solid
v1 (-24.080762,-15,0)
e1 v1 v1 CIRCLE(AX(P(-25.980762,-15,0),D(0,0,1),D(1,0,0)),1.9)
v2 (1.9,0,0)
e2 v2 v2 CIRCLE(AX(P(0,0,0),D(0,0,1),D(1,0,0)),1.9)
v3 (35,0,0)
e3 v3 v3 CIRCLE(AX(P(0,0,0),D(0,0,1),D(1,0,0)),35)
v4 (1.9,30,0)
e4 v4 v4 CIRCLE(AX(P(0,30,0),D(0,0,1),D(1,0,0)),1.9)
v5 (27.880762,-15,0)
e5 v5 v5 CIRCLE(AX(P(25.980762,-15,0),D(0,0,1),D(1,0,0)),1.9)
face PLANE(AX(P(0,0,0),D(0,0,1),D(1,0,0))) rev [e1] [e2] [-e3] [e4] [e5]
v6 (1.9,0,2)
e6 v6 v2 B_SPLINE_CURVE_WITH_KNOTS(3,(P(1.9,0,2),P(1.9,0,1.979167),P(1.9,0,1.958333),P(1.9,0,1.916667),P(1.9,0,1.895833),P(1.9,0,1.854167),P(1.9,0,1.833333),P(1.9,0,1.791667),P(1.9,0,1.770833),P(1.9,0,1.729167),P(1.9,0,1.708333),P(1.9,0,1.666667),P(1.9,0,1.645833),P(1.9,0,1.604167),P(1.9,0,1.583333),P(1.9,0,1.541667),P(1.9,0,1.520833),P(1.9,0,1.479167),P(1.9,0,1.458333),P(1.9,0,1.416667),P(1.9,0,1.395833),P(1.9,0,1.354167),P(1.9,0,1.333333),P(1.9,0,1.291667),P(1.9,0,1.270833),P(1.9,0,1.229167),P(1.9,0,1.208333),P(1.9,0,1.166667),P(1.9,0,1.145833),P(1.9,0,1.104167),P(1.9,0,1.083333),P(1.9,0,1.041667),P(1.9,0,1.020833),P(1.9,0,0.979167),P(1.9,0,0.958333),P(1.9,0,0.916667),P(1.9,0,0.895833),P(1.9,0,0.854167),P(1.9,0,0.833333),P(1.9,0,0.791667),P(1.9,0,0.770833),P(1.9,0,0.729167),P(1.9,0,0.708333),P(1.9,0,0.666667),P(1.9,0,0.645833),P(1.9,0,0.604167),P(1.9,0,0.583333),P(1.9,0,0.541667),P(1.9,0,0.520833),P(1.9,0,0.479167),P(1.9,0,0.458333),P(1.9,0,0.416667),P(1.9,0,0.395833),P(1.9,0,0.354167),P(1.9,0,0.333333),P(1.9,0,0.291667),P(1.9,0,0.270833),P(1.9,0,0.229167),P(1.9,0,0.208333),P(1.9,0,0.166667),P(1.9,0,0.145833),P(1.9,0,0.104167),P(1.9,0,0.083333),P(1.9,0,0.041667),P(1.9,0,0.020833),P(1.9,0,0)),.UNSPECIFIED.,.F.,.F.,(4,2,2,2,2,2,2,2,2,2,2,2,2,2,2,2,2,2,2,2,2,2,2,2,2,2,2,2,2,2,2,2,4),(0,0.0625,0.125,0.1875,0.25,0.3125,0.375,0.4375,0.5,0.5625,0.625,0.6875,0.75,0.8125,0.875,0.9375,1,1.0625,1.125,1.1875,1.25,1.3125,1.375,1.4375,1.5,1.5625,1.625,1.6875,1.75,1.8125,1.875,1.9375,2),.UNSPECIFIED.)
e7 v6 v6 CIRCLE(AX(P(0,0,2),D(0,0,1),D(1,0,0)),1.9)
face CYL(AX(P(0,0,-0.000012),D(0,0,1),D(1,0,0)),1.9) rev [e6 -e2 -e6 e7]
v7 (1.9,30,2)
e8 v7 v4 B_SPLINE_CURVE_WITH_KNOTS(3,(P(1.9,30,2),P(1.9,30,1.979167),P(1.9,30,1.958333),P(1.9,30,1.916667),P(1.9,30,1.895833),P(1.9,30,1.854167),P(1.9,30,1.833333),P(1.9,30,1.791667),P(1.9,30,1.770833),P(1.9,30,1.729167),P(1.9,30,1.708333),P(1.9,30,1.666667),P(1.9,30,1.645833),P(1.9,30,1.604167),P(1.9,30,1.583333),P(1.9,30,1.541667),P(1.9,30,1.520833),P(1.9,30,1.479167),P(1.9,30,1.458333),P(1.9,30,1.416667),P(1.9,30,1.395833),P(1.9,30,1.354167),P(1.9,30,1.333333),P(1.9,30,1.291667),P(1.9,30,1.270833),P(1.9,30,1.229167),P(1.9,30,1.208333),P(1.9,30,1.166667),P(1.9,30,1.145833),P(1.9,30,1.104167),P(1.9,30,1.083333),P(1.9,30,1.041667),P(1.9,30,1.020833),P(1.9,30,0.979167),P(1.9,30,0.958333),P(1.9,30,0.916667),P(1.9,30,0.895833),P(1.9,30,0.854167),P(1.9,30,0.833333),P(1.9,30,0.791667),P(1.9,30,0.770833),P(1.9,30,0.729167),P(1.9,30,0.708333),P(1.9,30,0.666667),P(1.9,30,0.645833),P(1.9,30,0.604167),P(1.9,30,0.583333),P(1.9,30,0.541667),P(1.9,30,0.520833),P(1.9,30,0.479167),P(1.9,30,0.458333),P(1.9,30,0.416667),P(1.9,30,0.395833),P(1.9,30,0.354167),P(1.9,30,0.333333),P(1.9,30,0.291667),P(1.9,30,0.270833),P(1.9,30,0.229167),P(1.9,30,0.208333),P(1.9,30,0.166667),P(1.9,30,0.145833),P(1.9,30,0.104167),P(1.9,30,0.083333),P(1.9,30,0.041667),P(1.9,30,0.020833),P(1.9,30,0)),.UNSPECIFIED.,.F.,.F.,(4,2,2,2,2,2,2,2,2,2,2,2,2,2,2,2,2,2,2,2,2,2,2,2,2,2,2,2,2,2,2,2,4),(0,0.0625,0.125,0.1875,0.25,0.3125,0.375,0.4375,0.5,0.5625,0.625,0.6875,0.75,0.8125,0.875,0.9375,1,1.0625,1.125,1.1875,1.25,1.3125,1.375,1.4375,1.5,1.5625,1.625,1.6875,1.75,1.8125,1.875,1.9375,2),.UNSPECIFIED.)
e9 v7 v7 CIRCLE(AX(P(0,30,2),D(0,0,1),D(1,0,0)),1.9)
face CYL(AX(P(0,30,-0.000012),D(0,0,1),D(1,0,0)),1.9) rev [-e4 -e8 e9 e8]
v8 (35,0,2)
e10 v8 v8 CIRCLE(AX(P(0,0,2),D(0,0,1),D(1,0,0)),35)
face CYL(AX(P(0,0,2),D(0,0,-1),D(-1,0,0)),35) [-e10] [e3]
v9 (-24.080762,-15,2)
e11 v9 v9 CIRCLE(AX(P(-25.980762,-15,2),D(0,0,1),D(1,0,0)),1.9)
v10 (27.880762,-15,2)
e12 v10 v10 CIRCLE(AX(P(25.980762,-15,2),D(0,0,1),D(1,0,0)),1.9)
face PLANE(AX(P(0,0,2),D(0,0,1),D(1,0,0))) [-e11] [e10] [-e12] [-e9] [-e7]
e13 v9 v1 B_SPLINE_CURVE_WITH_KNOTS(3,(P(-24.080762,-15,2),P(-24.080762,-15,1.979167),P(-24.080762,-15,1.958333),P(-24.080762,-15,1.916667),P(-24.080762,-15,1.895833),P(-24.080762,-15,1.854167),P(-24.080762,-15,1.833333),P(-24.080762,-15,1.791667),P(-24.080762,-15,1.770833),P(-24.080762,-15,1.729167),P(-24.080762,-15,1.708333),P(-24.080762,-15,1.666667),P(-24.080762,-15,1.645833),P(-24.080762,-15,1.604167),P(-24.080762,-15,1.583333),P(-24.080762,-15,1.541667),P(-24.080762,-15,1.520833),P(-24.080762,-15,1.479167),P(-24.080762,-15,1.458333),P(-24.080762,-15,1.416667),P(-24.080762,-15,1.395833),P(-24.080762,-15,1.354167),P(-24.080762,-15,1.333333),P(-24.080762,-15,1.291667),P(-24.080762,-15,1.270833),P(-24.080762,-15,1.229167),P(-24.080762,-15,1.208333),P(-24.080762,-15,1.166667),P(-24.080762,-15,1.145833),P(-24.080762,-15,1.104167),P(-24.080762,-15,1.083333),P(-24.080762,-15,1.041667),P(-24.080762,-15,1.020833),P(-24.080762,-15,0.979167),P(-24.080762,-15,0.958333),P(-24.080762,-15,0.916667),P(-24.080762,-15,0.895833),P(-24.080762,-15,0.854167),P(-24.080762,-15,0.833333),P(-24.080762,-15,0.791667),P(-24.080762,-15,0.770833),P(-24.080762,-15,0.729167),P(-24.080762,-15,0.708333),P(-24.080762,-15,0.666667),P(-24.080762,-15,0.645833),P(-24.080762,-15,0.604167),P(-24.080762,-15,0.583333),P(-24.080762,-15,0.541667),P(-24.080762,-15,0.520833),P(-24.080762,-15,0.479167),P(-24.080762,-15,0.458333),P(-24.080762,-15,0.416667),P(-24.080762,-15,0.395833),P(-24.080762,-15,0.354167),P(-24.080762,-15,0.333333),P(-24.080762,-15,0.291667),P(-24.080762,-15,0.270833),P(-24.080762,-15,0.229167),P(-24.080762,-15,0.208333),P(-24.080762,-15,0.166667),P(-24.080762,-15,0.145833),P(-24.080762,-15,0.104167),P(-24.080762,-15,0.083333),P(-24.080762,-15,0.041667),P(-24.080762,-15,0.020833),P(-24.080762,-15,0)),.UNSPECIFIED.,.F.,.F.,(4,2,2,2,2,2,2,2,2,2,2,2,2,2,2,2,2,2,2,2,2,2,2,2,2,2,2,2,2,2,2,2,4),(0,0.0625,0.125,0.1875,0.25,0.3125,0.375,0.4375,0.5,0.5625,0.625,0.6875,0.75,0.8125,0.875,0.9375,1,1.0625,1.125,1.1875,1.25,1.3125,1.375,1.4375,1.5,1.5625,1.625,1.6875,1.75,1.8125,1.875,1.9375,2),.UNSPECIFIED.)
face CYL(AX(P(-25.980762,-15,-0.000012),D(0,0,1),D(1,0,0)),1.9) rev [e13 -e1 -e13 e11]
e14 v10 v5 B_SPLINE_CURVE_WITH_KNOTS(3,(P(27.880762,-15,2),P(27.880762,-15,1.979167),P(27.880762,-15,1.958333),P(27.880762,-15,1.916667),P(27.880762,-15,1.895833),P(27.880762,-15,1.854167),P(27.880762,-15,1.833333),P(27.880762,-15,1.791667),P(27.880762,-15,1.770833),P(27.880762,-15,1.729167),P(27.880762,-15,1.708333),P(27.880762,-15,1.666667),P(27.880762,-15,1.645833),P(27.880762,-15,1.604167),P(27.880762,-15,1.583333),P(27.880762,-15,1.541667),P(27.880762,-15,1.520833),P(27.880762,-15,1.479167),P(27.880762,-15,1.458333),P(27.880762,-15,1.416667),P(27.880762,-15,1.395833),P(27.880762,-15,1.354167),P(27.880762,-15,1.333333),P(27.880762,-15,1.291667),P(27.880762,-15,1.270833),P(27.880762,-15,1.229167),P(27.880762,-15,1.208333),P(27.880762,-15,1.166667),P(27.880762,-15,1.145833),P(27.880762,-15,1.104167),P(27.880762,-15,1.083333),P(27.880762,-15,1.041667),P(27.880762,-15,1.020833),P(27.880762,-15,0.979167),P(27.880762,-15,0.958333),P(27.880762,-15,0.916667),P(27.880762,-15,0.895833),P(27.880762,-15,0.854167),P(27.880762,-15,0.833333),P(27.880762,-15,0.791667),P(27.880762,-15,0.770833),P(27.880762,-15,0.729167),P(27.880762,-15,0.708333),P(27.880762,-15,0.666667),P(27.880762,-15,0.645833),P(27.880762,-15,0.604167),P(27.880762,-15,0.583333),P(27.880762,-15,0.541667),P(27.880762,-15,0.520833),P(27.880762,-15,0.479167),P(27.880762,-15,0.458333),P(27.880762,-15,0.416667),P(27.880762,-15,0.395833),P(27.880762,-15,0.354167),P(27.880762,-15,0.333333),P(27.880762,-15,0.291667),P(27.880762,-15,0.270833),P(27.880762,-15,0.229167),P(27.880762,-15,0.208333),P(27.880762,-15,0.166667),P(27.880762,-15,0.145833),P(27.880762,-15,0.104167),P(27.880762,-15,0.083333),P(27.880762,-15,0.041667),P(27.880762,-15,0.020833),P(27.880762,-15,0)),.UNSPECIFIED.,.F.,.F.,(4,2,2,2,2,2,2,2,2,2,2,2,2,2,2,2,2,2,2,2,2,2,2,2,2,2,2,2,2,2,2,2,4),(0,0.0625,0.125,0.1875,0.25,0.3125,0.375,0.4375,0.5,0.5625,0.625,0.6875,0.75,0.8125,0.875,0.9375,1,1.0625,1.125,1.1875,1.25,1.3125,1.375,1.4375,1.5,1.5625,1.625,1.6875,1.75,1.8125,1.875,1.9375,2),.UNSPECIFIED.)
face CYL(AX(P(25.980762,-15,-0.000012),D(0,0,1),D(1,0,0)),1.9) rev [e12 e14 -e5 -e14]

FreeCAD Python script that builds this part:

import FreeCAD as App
import Part
import Sketcher
from FreeCAD import Vector
Q = App.Units.Quantity

doc = App.newDocument("Part")
body = doc.addObject("PartDesign::Body", "Body")

sketch1 = body.newObject("Sketcher::SketchObject", "Sketch")
sketch1.AttachmentSupport = (doc.getObject("XY_Plane"), [""])
sketch1.MapMode = "FlatFace"
sketch1.addGeometry(Part.Circle(Vector(0, 0, 0), Vector(0, 0, 1), 35), False)
sketch1.addConstraint(Sketcher.Constraint("Coincident", 0, 3, -1, 1))
sketch1.addConstraint(Sketcher.Constraint("Diameter", 0, Q("70 mm")))
pad1 = body.newObject("PartDesign::Pad", "Pad")
pad1.Profile = sketch1
pad1.Length = 2

sketch2 = body.newObject("Sketcher::SketchObject", "Sketch001")
sketch2.AttachmentSupport = (doc.getObject("XY_Plane"), [""])
sketch2.MapMode = "FlatFace"
sketch2.addGeometry(Part.Circle(Vector(0, 30, 0), Vector(0, 0, 1), 1.9), False)
sketch2.addGeometry(Part.Circle(Vector(25.980762, -15, 0), Vector(0, 0, 1), 1.9), False)
sketch2.addGeometry(Part.Circle(Vector(-25.980762, -15, 0), Vector(0, 0, 1), 1.9), False)
sketch2.addGeometry(Part.Circle(Vector(0, 0, 0), Vector(0, 0, 1), 1.9), False)
sketch2.addConstraint(Sketcher.Constraint("Coincident", 3, 3, -1, 1))
sketch2.addConstraint(Sketcher.Constraint("Equal", 0, 1))
sketch2.addConstraint(Sketcher.Constraint("Equal", 1, 2))
sketch2.addConstraint(Sketcher.Constraint("Equal", 2, 3))
sketch2.addConstraint(Sketcher.Constraint("Symmetric", 1, 3, 2, 3, -2))
sketch2.addConstraint(Sketcher.Constraint("PointOnObject", 0, 3, -2))
sketch2.addConstraint(Sketcher.Constraint("Diameter", 0, Q("3.8 mm")))
sketch2.addConstraint(Sketcher.Constraint("DistanceY", -1, 1, 0, 3, Q("30 mm")))
sketch2.addConstraint(Sketcher.Constraint("DistanceY", 1, 3, -1, 1, Q("15 mm")))
sketch2.addConstraint(Sketcher.Constraint("DistanceX", -1, 1, 1, 3, Q("25.980762 mm")))
pocket1 = body.newObject("PartDesign::Pocket", "Pocket")
pocket1.Profile = sketch2
pocket1.Type = "ThroughAll"
pocket1.Midplane = True

doc.recompute()
